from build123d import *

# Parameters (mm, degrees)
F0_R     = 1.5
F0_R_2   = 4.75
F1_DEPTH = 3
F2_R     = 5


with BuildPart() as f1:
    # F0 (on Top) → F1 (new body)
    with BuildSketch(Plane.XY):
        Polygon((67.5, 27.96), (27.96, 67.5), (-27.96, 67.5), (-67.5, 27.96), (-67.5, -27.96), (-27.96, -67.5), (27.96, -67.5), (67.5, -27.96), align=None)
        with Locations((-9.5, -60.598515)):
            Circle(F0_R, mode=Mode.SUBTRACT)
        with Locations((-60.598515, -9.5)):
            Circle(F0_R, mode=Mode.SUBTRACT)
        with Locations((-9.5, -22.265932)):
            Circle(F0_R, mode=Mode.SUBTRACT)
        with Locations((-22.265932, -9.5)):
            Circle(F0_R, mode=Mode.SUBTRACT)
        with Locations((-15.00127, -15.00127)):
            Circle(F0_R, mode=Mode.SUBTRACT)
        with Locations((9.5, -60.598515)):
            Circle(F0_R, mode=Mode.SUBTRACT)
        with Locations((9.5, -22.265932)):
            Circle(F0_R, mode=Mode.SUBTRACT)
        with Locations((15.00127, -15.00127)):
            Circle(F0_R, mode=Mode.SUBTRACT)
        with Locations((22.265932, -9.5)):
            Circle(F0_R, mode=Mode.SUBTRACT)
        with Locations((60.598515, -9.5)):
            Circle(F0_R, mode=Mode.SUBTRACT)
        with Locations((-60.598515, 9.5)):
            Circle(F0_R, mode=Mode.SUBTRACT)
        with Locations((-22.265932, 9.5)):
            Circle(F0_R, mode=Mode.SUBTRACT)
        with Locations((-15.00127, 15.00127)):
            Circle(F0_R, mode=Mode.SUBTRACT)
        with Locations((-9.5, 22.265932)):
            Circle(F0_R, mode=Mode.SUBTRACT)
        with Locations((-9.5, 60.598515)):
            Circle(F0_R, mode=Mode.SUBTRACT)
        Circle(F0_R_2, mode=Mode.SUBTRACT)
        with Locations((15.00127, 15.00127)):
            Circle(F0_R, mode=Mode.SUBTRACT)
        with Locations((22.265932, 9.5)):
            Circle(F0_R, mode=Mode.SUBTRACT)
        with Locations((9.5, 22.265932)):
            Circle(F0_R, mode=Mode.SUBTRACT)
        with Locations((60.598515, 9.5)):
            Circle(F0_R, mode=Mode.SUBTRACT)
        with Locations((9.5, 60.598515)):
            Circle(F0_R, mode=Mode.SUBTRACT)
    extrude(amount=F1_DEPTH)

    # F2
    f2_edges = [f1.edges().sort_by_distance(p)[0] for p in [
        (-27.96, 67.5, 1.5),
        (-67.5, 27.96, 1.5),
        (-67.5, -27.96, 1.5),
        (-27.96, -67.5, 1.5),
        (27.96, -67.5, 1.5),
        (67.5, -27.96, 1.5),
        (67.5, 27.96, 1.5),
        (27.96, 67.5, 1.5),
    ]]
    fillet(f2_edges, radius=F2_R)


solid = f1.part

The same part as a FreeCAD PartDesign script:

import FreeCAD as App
import Part
import Sketcher


def edges_at(feature, points):
    """Names of the edges that pass closest to the given points."""
    edges = feature.Shape.Edges
    near = lambda p: min(range(len(edges)), key=lambda i: edges[i].distToShape(Part.Vertex(*p))[0])
    return sorted({f"Edge{near(p) + 1}" for p in points})


def add_polygon(sketch, points):
    """Adds a closed chain of lines whose ends are joined by coincident constraints."""
    first, n = sketch.GeometryCount, len(points)
    for a, b in zip(points, points[1:] + points[:1]):
        sketch.addGeometry(Part.LineSegment(App.Vector(*a, 0), App.Vector(*b, 0)), False)
    for i in range(n):
        sketch.addConstraint(Sketcher.Constraint("Coincident", first + i, 2, first + (i + 1) % n, 1))

doc = App.newDocument("Part")
body = doc.addObject("PartDesign::Body", "Body")

sketch1 = body.newObject("Sketcher::SketchObject", "Sketch")
sketch1.AttachmentSupport = (doc.getObject("XY_Plane"), [""])
sketch1.MapMode = "FlatFace"
add_polygon(sketch1, [(67.5, 28), (28, 67.5), (-28, 67.5), (-67.5, 28), (-67.5, -28), (-28, -67.5), (28, -67.5), (67.5, -28)])
sketch1.addGeometry(Part.Circle(App.Vector(-9.5, -60.6, 0), App.Vector(0, 0, 1), 1.5), False)
sketch1.addGeometry(Part.Circle(App.Vector(-60.6, -9.5, 0), App.Vector(0, 0, 1), 1.5), False)
sketch1.addGeometry(Part.Circle(App.Vector(-9.5, -22.3, 0), App.Vector(0, 0, 1), 1.5), False)
sketch1.addGeometry(Part.Circle(App.Vector(-22.3, -9.5, 0), App.Vector(0, 0, 1), 1.5), False)
sketch1.addGeometry(Part.Circle(App.Vector(-15, -15, 0), App.Vector(0, 0, 1), 1.5), False)
sketch1.addGeometry(Part.Circle(App.Vector(9.5, -60.6, 0), App.Vector(0, 0, 1), 1.5), False)
sketch1.addGeometry(Part.Circle(App.Vector(9.5, -22.3, 0), App.Vector(0, 0, 1), 1.5), False)
sketch1.addGeometry(Part.Circle(App.Vector(15, -15, 0), App.Vector(0, 0, 1), 1.5), False)
sketch1.addGeometry(Part.Circle(App.Vector(22.3, -9.5, 0), App.Vector(0, 0, 1), 1.5), False)
sketch1.addGeometry(Part.Circle(App.Vector(60.6, -9.5, 0), App.Vector(0, 0, 1), 1.5), False)
sketch1.addGeometry(Part.Circle(App.Vector(-60.6, 9.5, 0), App.Vector(0, 0, 1), 1.5), False)
sketch1.addGeometry(Part.Circle(App.Vector(-22.3, 9.5, 0), App.Vector(0, 0, 1), 1.5), False)
sketch1.addGeometry(Part.Circle(App.Vector(-15, 15, 0), App.Vector(0, 0, 1), 1.5), False)
sketch1.addGeometry(Part.Circle(App.Vector(-9.5, 22.3, 0), App.Vector(0, 0, 1), 1.5), False)
sketch1.addGeometry(Part.Circle(App.Vector(-9.5, 60.6, 0), App.Vector(0, 0, 1), 1.5), False)
sketch1.addGeometry(Part.Circle(App.Vector(0, 0, 0), App.Vector(0, 0, 1), 4.8), False)
sketch1.addGeometry(Part.Circle(App.Vector(15, 15, 0), App.Vector(0, 0, 1), 1.5), False)
sketch1.addGeometry(Part.Circle(App.Vector(22.3, 9.5, 0), App.Vector(0, 0, 1), 1.5), False)
sketch1.addGeometry(Part.Circle(App.Vector(9.5, 22.3, 0), App.Vector(0, 0, 1), 1.5), False)
sketch1.addGeometry(Part.Circle(App.Vector(60.6, 9.5, 0), App.Vector(0, 0, 1), 1.5), False)
sketch1.addGeometry(Part.Circle(App.Vector(9.5, 60.6, 0), App.Vector(0, 0, 1), 1.5), False)
sketch1.addConstraint(Sketcher.Constraint("Horizontal", 1))
sketch1.addConstraint(Sketcher.Constraint("Vertical", 3))
sketch1.addConstraint(Sketcher.Constraint("Horizontal", 5))
sketch1.addConstraint(Sketcher.Constraint("Vertical", 7))
sketch1.addConstraint(Sketcher.Constraint("Coincident", 23, 3, -1, 1))
sketch1.addConstraint(Sketcher.Constraint("Equal", 8, 9))
sketch1.addConstraint(Sketcher.Constraint("Equal", 9, 10))
sketch1.addConstraint(Sketcher.Constraint("Equal", 10, 11))
sketch1.addConstraint(Sketcher.Constraint("Equal", 11, 12))
sketch1.addConstraint(Sketcher.Constraint("Equal", 12, 13))
sketch1.addConstraint(Sketcher.Constraint("Equal", 13, 14))
sketch1.addConstraint(Sketcher.Constraint("Equal", 14, 15))
sketch1.addConstraint(Sketcher.Constraint("Equal", 15, 16))
sketch1.addConstraint(Sketcher.Constraint("Equal", 16, 17))
sketch1.addConstraint(Sketcher.Constraint("Equal", 17, 18))
sketch1.addConstraint(Sketcher.Constraint("Equal", 18, 19))
sketch1.addConstraint(Sketcher.Constraint("Equal", 19, 20))
sketch1.addConstraint(Sketcher.Constraint("Equal", 20, 21))
sketch1.addConstraint(Sketcher.Constraint("Equal", 21, 22))
sketch1.addConstraint(Sketcher.Constraint("Equal", 22, 24))
sketch1.addConstraint(Sketcher.Constraint("Equal", 24, 25))
sketch1.addConstraint(Sketcher.Constraint("Equal", 25, 26))
sketch1.addConstraint(Sketcher.Constraint("Equal", 26, 27))
sketch1.addConstraint(Sketcher.Constraint("Equal", 27, 28))
sketch1.addConstraint(Sketcher.Constraint("Symmetric", 17, 3, 18, 3, -1, 1))
sketch1.addConstraint(Sketcher.Constraint("Symmetric", 16, 3, 19, 3, -1, 1))
sketch1.addConstraint(Sketcher.Constraint("Symmetric", 15, 3, 20, 3, -1, 1))
sketch1.addConstraint(Sketcher.Constraint("Symmetric", 14, 3, 21, 3, -1, 1))
sketch1.addConstraint(Sketcher.Constraint("Symmetric", 13, 3, 22, 3, -1, 1))
sketch1.addConstraint(Sketcher.Constraint("Symmetric", 12, 3, 24, 3, -1, 1))
sketch1.addConstraint(Sketcher.Constraint("Symmetric", 11, 3, 25, 3, -1, 1))
sketch1.addConstraint(Sketcher.Constraint("Symmetric", 10, 3, 26, 3, -1, 1))
sketch1.addConstraint(Sketcher.Constraint("Symmetric", 9, 3, 27, 3, -1, 1))
sketch1.addConstraint(Sketcher.Constraint("Symmetric", 8, 3, 28, 3, -1, 1))
sketch1.addConstraint(Sketcher.Constraint("Symmetric", 0, 2, 4, 2, -1, 1))
sketch1.addConstraint(Sketcher.Constraint("Symmetric", 2, 2, 6, 2, -1, 1))
sketch1.addConstraint(Sketcher.Constraint("Symmetric", 8, 3, 13, 3, -2))
sketch1.addConstraint(Sketcher.Constraint("Symmetric", 10, 3, 14, 3, -2))
sketch1.addConstraint(Sketcher.Constraint("Symmetric", 12, 3, 15, 3, -2))
sketch1.addConstraint(Sketcher.Constraint("Symmetric", 11, 3, 16, 3, -2))
sketch1.addConstraint(Sketcher.Constraint("Symmetric", 9, 3, 17, 3, -2))
sketch1.addConstraint(Sketcher.Constraint("Perpendicular", 0, 2))
sketch1.addConstraint(Sketcher.Constraint("Perpendicular", 2, 4))
sketch1.addConstraint(Sketcher.Constraint("Perpendicular", 4, 6))
sketch1.addConstraint(Sketcher.Constraint("Horizontal", 9, 3, 11, 3))
sketch1.addConstraint(Sketcher.Constraint("Horizontal", 3, 2, 6, 2))
sketch1.addConstraint(Sketcher.Constraint("Vertical", 8, 3, 10, 3))
sketch1.addConstraint(Sketcher.Constraint("Vertical", 1, 2, 4, 2))
sketch1.addConstraint(Sketcher.Constraint("Equal", 5, 3))
sketch1.addConstraint(Sketcher.Constraint("Diameter", 8, 3.0))
sketch1.addConstraint(Sketcher.Constraint("Diameter", 23, 9.5))
sketch1.addConstraint(Sketcher.Constraint("DistanceX", 8, 3, 13, 3, 19.0))
sketch1.addConstraint(Sketcher.Constraint("DistanceY", 9, 3, 18, 3, 19.0))
sketch1.addConstraint(Sketcher.Constraint("DistanceY", 25, 3, 0, 2, 58.0))
sketch1.addConstraint(Sketcher.Constraint("DistanceX", 1, 2, 1, 1, 55.92))
sketch1.addConstraint(Sketcher.Constraint("DistanceX", 11, 3, 15, 3, 37.267202))
sketch1.addConstraint(Sketcher.Constraint("DistanceY", 10, 3, 20, 3, 37.267202))
sketch1.addConstraint(Sketcher.Constraint("DistanceY", 10, 3, -1, 1, 22.265932))
sketch1.addConstraint(Sketcher.Constraint("DistanceX", 11, 3, -1, 1, 22.265932))
sketch1.addConstraint(Sketcher.Constraint("DistanceY", 8, 3, -1, 1, 60.598515))
sketch1.addConstraint(Sketcher.Constraint("DistanceX", 9, 3, -1, 1, 60.598515))
pad1 = body.newObject("PartDesign::Pad", "Pad")
pad1.Profile = sketch1
pad1.Length = 3
doc.recompute()

fillet = body.newObject("PartDesign::Fillet", "Fillet")
fillet.Base = (pad1, edges_at(pad1, [
    (-27.96, 67.5, 1.5),
    (-67.5, 27.96, 1.5),
    (-67.5, -27.96, 1.5),
    (-27.96, -67.5, 1.5),
    (27.96, -67.5, 1.5),
    (67.5, -27.96, 1.5),
    (67.5, 27.96, 1.5),
    (27.96, 67.5, 1.5),
]))
fillet.Radius = 5

doc.recompute()
